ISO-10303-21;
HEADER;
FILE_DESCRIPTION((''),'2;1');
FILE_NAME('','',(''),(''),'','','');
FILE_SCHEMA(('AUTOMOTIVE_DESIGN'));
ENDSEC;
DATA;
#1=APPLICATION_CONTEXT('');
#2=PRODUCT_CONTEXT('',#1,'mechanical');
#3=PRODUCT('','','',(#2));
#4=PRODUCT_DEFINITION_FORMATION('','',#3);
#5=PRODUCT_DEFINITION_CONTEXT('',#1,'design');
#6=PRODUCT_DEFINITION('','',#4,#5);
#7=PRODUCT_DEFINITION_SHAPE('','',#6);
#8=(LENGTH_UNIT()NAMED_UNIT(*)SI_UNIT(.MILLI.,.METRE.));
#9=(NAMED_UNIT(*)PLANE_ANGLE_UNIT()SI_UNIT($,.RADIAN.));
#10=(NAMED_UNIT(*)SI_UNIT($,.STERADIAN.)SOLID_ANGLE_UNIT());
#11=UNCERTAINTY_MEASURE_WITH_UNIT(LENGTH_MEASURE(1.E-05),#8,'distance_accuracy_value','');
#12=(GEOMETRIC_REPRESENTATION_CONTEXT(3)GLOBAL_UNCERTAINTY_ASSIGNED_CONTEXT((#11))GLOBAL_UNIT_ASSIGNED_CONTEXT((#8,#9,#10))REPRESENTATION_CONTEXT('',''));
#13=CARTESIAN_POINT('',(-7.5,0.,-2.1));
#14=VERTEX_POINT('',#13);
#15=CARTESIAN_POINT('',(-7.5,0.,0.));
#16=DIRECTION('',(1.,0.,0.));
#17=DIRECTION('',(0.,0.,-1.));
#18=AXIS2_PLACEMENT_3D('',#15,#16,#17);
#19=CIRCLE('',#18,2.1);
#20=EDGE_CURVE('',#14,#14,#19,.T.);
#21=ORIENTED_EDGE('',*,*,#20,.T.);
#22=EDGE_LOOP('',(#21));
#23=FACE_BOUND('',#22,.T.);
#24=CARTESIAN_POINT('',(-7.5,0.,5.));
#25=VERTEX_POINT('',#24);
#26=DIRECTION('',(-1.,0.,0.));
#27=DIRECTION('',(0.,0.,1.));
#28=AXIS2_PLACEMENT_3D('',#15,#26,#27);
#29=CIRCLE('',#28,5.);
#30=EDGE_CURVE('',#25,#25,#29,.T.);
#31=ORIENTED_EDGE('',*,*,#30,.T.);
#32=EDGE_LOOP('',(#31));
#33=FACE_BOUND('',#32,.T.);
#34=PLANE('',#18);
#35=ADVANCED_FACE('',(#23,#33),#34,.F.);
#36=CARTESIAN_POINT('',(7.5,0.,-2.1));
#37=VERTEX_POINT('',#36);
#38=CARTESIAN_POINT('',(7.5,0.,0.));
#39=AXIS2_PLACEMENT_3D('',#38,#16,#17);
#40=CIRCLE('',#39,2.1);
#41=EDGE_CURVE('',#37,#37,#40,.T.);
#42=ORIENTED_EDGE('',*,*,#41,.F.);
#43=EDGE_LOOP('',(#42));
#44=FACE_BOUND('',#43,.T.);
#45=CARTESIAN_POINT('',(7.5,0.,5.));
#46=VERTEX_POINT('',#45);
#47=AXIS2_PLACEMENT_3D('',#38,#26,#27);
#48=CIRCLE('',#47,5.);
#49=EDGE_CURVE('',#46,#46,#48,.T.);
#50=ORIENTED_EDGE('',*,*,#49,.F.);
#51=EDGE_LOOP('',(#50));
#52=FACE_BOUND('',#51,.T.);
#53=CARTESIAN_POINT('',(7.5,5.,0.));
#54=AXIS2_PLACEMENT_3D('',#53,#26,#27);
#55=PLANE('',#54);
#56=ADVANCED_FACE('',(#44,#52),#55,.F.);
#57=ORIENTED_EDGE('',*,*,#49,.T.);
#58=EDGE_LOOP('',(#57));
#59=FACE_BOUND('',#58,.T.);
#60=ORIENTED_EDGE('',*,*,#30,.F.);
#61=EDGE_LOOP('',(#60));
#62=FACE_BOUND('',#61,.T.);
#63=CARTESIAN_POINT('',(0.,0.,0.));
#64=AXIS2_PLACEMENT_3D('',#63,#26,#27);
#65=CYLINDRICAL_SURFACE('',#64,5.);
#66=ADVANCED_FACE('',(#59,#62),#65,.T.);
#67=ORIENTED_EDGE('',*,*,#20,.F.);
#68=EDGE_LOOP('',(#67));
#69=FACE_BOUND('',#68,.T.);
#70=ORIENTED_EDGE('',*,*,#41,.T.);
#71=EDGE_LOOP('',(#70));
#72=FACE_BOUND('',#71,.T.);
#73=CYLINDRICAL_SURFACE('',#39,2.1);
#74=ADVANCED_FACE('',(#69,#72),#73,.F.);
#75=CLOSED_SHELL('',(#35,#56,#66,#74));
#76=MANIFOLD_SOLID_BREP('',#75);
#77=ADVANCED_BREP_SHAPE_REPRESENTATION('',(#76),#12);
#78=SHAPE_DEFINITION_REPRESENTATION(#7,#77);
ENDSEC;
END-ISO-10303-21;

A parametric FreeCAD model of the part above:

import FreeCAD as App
import Part
import Sketcher

V = App.Vector
Q = App.Units.Quantity

doc = App.newDocument("Part")
body = doc.addObject("PartDesign::Body", "Body")

# Sketch on XY plane
sketch1 = body.newObject("Sketcher::SketchObject", "Sketch")
sketch1.AttachmentSupport = (doc.getObject("XY_Plane"), [""])
sketch1.MapMode = "FlatFace"
sketch1.addGeometry([
    Part.LineSegment(V(-8, 5, 0), V(-8, 0, 0)),
    Part.LineSegment(V(-8, 0, 0), V(8, 0, 0)),
    Part.LineSegment(V(8, 0, 0), V(8, 5, 0)),
    Part.LineSegment(V(8, 5, 0), V(-8, 5, 0)),
], False)
sketch1.addConstraint([
    Sketcher.Constraint("Coincident", 0, 2, 1, 1),
    Sketcher.Constraint("Coincident", 1, 2, 2, 1),
    Sketcher.Constraint("Coincident", 2, 2, 3, 1),
    Sketcher.Constraint("Coincident", 3, 2, 0, 1),
    Sketcher.Constraint("Vertical", 0),
    Sketcher.Constraint("Horizontal", 1),
    Sketcher.Constraint("Vertical", 2),
    Sketcher.Constraint("Horizontal", 3),
    Sketcher.Constraint("Symmetric", 0, 2, 1, 2, -1, 1),
    Sketcher.Constraint("DistanceX", 1, 1, 1, 2, Q("15 mm")),
    Sketcher.Constraint("DistanceY", 0, 2, 0, 1, Q("5 mm")),
])
revolution = body.newObject("PartDesign::Revolution", "Revolution")
revolution.Profile = sketch1
revolution.ReferenceAxis = (sketch1, ["H_Axis"])
revolution.Angle = 360

# Sketch on YZ plane
sketch2 = body.newObject("Sketcher::SketchObject", "Sketch001")
sketch2.AttachmentSupport = (doc.getObject("YZ_Plane"), [""])
sketch2.MapMode = "FlatFace"
sketch2.AttachmentOffset = App.Placement(V(0, 0, 7.5), App.Rotation())
sketch2.addGeometry(Part.Circle(V(0, 0, 0), V(0, 0, 1), 2.1), False)
sketch2.addConstraint([
    Sketcher.Constraint("Coincident", 0, 3, -1, 1),
    Sketcher.Constraint("Diameter", 0, Q("4.2 mm")),
])
doc.recompute()
hole = body.newObject("PartDesign::Hole", "Hole")
hole.Profile = sketch2
hole.ThreadType = "None"
hole.Diameter = 4.2
hole.DepthType = "ThroughAll"

doc.recompute()
